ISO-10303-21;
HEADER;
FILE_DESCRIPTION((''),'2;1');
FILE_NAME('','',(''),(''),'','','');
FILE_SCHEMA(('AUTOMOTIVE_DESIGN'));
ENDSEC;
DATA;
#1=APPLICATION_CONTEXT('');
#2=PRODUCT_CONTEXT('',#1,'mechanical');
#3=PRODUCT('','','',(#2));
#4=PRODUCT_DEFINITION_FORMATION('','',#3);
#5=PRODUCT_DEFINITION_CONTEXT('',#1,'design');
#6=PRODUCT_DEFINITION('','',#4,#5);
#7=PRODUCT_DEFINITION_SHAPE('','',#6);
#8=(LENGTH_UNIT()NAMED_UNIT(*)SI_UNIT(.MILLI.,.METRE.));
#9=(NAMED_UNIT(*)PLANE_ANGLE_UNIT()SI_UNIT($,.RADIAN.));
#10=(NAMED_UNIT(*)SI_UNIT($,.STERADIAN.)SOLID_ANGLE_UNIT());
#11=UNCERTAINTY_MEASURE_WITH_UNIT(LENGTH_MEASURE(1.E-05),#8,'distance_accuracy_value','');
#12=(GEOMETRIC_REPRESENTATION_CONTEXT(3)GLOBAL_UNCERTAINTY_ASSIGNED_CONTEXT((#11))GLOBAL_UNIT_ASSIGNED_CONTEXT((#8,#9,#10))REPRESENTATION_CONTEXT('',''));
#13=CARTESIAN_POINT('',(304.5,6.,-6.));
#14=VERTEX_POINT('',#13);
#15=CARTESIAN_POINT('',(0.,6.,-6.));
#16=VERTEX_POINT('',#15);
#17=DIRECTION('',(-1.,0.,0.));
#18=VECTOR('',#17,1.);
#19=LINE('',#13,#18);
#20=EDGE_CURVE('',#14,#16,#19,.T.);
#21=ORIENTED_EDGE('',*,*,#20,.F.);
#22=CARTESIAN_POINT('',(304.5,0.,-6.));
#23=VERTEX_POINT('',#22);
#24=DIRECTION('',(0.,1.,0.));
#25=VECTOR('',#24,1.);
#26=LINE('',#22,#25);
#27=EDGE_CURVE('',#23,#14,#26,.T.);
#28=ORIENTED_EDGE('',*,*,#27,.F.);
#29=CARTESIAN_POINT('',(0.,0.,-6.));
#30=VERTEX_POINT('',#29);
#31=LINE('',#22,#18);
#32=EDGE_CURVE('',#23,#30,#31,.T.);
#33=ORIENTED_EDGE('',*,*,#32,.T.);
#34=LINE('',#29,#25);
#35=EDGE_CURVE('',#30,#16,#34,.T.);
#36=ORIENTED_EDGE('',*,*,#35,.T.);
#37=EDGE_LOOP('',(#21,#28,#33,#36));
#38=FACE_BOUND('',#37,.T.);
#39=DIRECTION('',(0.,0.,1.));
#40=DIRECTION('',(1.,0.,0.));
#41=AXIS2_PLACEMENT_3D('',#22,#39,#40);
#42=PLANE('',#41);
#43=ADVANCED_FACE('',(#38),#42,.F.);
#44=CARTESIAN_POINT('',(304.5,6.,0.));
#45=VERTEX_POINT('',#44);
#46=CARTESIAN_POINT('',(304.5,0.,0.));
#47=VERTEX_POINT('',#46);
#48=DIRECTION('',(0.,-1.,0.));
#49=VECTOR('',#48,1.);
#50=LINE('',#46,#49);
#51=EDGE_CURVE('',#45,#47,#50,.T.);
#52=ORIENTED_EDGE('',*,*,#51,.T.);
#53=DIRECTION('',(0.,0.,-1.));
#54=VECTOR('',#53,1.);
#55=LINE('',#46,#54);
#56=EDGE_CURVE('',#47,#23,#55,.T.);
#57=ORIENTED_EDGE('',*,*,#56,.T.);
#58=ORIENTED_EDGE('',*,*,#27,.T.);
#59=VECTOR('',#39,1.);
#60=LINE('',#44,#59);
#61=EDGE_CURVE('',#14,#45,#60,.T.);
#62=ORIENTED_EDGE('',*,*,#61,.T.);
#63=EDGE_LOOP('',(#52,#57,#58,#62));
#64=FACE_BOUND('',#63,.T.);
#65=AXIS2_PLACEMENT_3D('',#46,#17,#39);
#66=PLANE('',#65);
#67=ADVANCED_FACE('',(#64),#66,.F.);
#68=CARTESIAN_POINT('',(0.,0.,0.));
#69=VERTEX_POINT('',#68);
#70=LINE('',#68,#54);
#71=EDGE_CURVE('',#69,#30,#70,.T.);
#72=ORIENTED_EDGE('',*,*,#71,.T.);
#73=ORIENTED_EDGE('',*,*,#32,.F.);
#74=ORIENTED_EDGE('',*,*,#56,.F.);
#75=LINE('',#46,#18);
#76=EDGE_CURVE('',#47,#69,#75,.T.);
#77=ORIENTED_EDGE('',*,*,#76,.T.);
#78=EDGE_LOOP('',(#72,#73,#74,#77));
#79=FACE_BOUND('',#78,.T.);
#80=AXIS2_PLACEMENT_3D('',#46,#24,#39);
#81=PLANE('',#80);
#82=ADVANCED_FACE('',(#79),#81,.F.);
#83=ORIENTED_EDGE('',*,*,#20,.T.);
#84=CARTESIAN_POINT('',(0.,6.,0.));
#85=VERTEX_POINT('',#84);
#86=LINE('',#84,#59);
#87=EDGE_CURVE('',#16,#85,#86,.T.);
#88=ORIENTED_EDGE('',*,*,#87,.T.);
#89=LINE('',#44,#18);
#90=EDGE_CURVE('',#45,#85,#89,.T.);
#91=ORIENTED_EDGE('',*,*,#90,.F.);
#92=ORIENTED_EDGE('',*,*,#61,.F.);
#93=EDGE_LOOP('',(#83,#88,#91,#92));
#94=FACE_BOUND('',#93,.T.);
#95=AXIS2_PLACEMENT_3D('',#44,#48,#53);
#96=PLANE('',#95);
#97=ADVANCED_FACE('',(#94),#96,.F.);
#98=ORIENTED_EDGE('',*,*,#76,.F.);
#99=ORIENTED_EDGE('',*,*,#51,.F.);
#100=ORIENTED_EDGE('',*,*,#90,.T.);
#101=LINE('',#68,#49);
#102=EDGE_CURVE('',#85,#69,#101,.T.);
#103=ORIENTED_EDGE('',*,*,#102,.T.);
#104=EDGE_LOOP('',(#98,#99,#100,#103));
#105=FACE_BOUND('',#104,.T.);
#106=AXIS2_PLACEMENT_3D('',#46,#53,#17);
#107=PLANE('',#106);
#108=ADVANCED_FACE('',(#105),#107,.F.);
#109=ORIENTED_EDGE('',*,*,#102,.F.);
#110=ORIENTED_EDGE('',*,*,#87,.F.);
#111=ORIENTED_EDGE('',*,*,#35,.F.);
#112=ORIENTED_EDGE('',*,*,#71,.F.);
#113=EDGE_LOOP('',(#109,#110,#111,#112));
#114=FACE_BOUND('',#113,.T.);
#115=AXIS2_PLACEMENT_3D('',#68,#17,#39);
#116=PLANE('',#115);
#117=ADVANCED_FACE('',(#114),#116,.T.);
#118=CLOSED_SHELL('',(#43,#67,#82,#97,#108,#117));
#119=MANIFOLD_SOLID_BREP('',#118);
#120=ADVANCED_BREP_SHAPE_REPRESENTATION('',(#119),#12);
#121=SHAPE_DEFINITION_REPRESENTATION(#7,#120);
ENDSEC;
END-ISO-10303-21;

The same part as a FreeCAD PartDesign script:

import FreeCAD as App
import Part
import Sketcher
from FreeCAD import Vector
Q = App.Units.Quantity

doc = App.newDocument("Part")
body = doc.addObject("PartDesign::Body", "Body")

sketch1 = body.newObject("Sketcher::SketchObject", "Sketch")
sketch1.AttachmentSupport = (doc.getObject("YZ_Plane"), [""])
sketch1.MapMode = "FlatFace"
sketch1.addGeometry(Part.LineSegment(Vector(6, 0, 0), Vector(0, 0, 0)), False)
sketch1.addGeometry(Part.LineSegment(Vector(0, 0, 0), Vector(0, -6, 0)), False)
sketch1.addGeometry(Part.LineSegment(Vector(0, -6, 0), Vector(6, -6, 0)), False)
sketch1.addGeometry(Part.LineSegment(Vector(6, -6, 0), Vector(6, 0, 0)), False)
sketch1.addConstraint(Sketcher.Constraint("Coincident", 0, 2, 1, 1))
sketch1.addConstraint(Sketcher.Constraint("Coincident", 1, 2, 2, 1))
sketch1.addConstraint(Sketcher.Constraint("Coincident", 2, 2, 3, 1))
sketch1.addConstraint(Sketcher.Constraint("Coincident", 3, 2, 0, 1))
sketch1.addConstraint(Sketcher.Constraint("Horizontal", 0))
sketch1.addConstraint(Sketcher.Constraint("Vertical", 1))
sketch1.addConstraint(Sketcher.Constraint("Horizontal", 2))
sketch1.addConstraint(Sketcher.Constraint("Vertical", 3))
sketch1.addConstraint(Sketcher.Constraint("Coincident", 0, 2, -1, 1))
sketch1.addConstraint(Sketcher.Constraint("Equal", 2, 1))
sketch1.addConstraint(Sketcher.Constraint("DistanceX", 0, 2, 0, 1, Q("6 mm")))
pad1 = body.newObject("PartDesign::Pad", "Pad")
pad1.Profile = sketch1
pad1.Length = 304.5

doc.recompute()
